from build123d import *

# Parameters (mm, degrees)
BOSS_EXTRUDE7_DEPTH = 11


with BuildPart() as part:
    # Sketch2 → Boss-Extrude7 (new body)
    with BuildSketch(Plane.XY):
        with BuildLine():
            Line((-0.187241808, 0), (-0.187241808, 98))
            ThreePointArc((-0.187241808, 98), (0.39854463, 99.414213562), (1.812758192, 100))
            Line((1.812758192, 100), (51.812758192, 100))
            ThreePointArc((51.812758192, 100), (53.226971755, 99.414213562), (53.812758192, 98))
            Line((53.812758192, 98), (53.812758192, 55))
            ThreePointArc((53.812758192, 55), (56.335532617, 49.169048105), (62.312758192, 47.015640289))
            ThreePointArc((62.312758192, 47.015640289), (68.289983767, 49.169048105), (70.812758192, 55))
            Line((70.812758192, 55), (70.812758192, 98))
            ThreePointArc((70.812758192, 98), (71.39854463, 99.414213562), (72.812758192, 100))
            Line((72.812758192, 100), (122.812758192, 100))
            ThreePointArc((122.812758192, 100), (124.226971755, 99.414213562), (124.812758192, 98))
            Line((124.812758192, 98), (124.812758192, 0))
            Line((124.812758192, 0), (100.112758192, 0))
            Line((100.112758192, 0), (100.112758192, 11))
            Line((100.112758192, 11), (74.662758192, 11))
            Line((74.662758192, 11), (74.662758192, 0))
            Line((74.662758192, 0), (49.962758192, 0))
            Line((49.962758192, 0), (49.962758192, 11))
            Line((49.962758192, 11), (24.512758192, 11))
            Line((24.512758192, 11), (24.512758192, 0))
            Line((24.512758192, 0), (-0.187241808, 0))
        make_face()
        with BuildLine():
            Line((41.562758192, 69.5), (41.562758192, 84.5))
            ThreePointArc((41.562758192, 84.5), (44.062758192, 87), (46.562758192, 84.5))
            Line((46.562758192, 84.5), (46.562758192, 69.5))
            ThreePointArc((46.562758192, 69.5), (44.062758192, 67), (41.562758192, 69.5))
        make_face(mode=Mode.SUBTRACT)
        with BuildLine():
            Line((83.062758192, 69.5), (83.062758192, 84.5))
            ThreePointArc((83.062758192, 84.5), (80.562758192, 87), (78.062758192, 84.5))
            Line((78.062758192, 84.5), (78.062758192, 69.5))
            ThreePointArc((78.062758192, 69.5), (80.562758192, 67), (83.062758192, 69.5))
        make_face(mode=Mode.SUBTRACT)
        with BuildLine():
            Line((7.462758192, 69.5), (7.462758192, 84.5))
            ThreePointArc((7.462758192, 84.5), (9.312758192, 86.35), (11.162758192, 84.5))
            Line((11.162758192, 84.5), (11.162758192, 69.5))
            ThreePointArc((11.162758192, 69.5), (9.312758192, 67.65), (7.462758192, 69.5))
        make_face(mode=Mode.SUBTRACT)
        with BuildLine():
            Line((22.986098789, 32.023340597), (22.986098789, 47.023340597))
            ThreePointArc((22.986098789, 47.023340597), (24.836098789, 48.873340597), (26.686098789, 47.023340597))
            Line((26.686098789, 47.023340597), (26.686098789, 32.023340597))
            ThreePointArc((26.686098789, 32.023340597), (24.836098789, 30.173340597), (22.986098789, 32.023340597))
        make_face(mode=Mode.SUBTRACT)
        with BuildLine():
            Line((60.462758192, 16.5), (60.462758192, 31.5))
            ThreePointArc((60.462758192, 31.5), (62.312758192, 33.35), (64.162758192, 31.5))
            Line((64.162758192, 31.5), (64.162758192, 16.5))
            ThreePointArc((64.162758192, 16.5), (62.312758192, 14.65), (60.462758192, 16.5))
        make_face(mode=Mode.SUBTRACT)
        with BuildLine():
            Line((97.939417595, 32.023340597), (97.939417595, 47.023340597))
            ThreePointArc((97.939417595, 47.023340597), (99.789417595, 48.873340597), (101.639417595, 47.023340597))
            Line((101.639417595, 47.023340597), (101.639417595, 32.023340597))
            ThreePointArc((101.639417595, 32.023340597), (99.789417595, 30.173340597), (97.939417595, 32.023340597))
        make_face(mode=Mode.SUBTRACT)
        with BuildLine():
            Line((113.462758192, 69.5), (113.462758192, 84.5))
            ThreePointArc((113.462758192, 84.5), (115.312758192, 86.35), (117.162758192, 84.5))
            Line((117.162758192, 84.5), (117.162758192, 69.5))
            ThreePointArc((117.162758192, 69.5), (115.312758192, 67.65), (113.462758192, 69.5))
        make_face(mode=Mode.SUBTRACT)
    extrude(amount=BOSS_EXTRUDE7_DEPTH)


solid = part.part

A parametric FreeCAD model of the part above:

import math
import FreeCAD as App
import Part
import Sketcher

V = App.Vector

doc = App.newDocument("Part")
params = doc.addObject("Spreadsheet::Sheet", "Params")
for row, (alias, value) in enumerate([
    ("sketch1_radius", "2 mm"),
    ("sketch1_radius2", "8 mm"),
    ("sketch1_radius3", "2.5 mm"),
    ("sketch1_width", "50 mm"),
    ("sketch1_height", "98 mm"),
    ("pad1_length", "11 mm"),
], start=1):
    params.set(f"A{row}", alias)
    params.set(f"B{row}", "=" + value)
    params.setAlias(f"B{row}", alias)

body = doc.addObject("PartDesign::Body", "Body")

# Sketch on XY plane
sketch1 = body.newObject("Sketcher::SketchObject", "Sketch")
sketch1.AttachmentSupport = (doc.getObject("XY_Plane"), [""])
sketch1.MapMode = "FlatFace"
sketch1.addGeometry(Part.LineSegment(V(-0.2, 98, 0), V(-0.2, 0, 0)), False)
sketch1.addGeometry(Part.LineSegment(V(-0.2, 0, 0), V(24.5, 0, 0)), False)
sketch1.addGeometry(Part.LineSegment(V(24.5, 0, 0), V(24.5, 11, 0)), False)
sketch1.addGeometry(Part.LineSegment(V(24.5, 11, 0), V(50, 11, 0)), False)
sketch1.addGeometry(Part.LineSegment(V(50, 11, 0), V(50, 0, 0)), False)
sketch1.addGeometry(Part.LineSegment(V(50, 0, 0), V(74.7, 0, 0)), False)
sketch1.addGeometry(Part.LineSegment(V(74.7, 0, 0), V(74.7, 11, 0)), False)
sketch1.addGeometry(Part.LineSegment(V(74.7, 11, 0), V(100.1, 11, 0)), False)
sketch1.addGeometry(Part.LineSegment(V(100.1, 11, 0), V(100.1, 0, 0)), False)
sketch1.addGeometry(Part.LineSegment(V(100.1, 0, 0), V(124.8, 0, 0)), False)
sketch1.addGeometry(Part.LineSegment(V(124.8, 0, 0), V(124.8, 98, 0)), False)
sketch1.addGeometry(Part.ArcOfCircle(Part.Circle(V(122.8, 98, 0), V(0, 0, 1), 2), math.radians(0), math.radians(90)), False)
sketch1.addGeometry(Part.LineSegment(V(122.8, 100, 0), V(72.8, 100, 0)), False)
sketch1.addGeometry(Part.ArcOfCircle(Part.Circle(V(72.8, 98, 0), V(0, 0, 1), 2), math.radians(90), math.radians(180)), False)
sketch1.addGeometry(Part.LineSegment(V(70.8, 98, 0), V(70.8, 55, 0)), False)
sketch1.addGeometry(Part.ArcOfCircle(Part.Circle(V(62.8, 55, 0), V(0, 0, 1), 8), math.radians(-94), math.radians(0)), False)
sketch1.addGeometry(Part.ArcOfCircle(Part.Circle(V(61.8, 55, 0), V(0, 0, 1), 8), math.radians(180), math.radians(274)), False)
sketch1.addGeometry(Part.LineSegment(V(53.8, 55, 0), V(53.8, 98, 0)), False)
sketch1.addGeometry(Part.ArcOfCircle(Part.Circle(V(51.8, 98, 0), V(0, 0, 1), 2), math.radians(0), math.radians(90)), False)
sketch1.addGeometry(Part.LineSegment(V(51.8, 100, 0), V(1.8, 100, 0)), False)
sketch1.addGeometry(Part.ArcOfCircle(Part.Circle(V(1.8, 98, 0), V(0, 0, 1), 2), math.radians(90), math.radians(180)), False)
sketch1.addGeometry(Part.LineSegment(V(97.9, 32, 0), V(97.9, 47, 0)), False)
sketch1.addGeometry(Part.ArcOfCircle(Part.Circle(V(99.8, 47, 0), V(0, 0, 1), 1.9), math.radians(0), math.radians(180)), False)
sketch1.addGeometry(Part.LineSegment(V(101.6, 47, 0), V(101.6, 32, 0)), False)
sketch1.addGeometry(Part.ArcOfCircle(Part.Circle(V(99.8, 32, 0), V(0, 0, 1), 1.9), math.radians(180), math.radians(360)), False)
sketch1.addGeometry(Part.LineSegment(V(60.5, 16.5, 0), V(60.5, 31.5, 0)), False)
sketch1.addGeometry(Part.ArcOfCircle(Part.Circle(V(62.3, 31.5, 0), V(0, 0, 1), 1.9), math.radians(0), math.radians(180)), False)
sketch1.addGeometry(Part.LineSegment(V(64.2, 31.5, 0), V(64.2, 16.5, 0)), False)
sketch1.addGeometry(Part.ArcOfCircle(Part.Circle(V(62.3, 16.5, 0), V(0, 0, 1), 1.9), math.radians(180), math.radians(360)), False)
sketch1.addGeometry(Part.LineSegment(V(23, 32, 0), V(23, 47, 0)), False)
sketch1.addGeometry(Part.ArcOfCircle(Part.Circle(V(24.8, 47, 0), V(0, 0, 1), 1.9), math.radians(0), math.radians(180)), False)
sketch1.addGeometry(Part.LineSegment(V(26.7, 47, 0), V(26.7, 32, 0)), False)
sketch1.addGeometry(Part.ArcOfCircle(Part.Circle(V(24.8, 32, 0), V(0, 0, 1), 1.9), math.radians(180), math.radians(360)), False)
sketch1.addGeometry(Part.LineSegment(V(113.5, 69.5, 0), V(113.5, 84.5, 0)), False)
sketch1.addGeometry(Part.ArcOfCircle(Part.Circle(V(115.3, 84.5, 0), V(0, 0, 1), 1.9), math.radians(0), math.radians(180)), False)
sketch1.addGeometry(Part.LineSegment(V(117.2, 84.5, 0), V(117.2, 69.5, 0)), False)
sketch1.addGeometry(Part.ArcOfCircle(Part.Circle(V(115.3, 69.5, 0), V(0, 0, 1), 1.9), math.radians(180), math.radians(360)), False)
sketch1.addGeometry(Part.ArcOfCircle(Part.Circle(V(80.6, 69.5, 0), V(0, 0, 1), 2.5), math.radians(180), math.radians(360)), False)
sketch1.addGeometry(Part.LineSegment(V(78.1, 69.5, 0), V(78.1, 84.5, 0)), False)
sketch1.addGeometry(Part.ArcOfCircle(Part.Circle(V(80.6, 84.5, 0), V(0, 0, 1), 2.5), math.radians(0), math.radians(180)), False)
sketch1.addGeometry(Part.LineSegment(V(83.1, 84.5, 0), V(83.1, 69.5, 0)), False)
sketch1.addGeometry(Part.LineSegment(V(41.6, 69.5, 0), V(41.6, 84.5, 0)), False)
sketch1.addGeometry(Part.ArcOfCircle(Part.Circle(V(44.1, 84.5, 0), V(0, 0, 1), 2.5), math.radians(0), math.radians(180)), False)
sketch1.addGeometry(Part.LineSegment(V(46.6, 84.5, 0), V(46.6, 69.5, 0)), False)
sketch1.addGeometry(Part.ArcOfCircle(Part.Circle(V(44.1, 69.5, 0), V(0, 0, 1), 2.5), math.radians(180), math.radians(360)), False)
sketch1.addGeometry(Part.LineSegment(V(7.5, 69.5, 0), V(7.5, 84.5, 0)), False)
sketch1.addGeometry(Part.ArcOfCircle(Part.Circle(V(9.3, 84.5, 0), V(0, 0, 1), 1.9), math.radians(0), math.radians(180)), False)
sketch1.addGeometry(Part.LineSegment(V(11.2, 84.5, 0), V(11.2, 69.5, 0)), False)
sketch1.addGeometry(Part.ArcOfCircle(Part.Circle(V(9.3, 69.5, 0), V(0, 0, 1), 1.9), math.radians(180), math.radians(360)), False)
sketch1.addConstraint(Sketcher.Constraint("Coincident", 0, 2, 1, 1))
sketch1.addConstraint(Sketcher.Constraint("Coincident", 1, 2, 2, 1))
sketch1.addConstraint(Sketcher.Constraint("Coincident", 2, 2, 3, 1))
sketch1.addConstraint(Sketcher.Constraint("Coincident", 3, 2, 4, 1))
sketch1.addConstraint(Sketcher.Constraint("Coincident", 4, 2, 5, 1))
sketch1.addConstraint(Sketcher.Constraint("Coincident", 5, 2, 6, 1))
sketch1.addConstraint(Sketcher.Constraint("Coincident", 6, 2, 7, 1))
sketch1.addConstraint(Sketcher.Constraint("Coincident", 7, 2, 8, 1))
sketch1.addConstraint(Sketcher.Constraint("Coincident", 8, 2, 9, 1))
sketch1.addConstraint(Sketcher.Constraint("Coincident", 9, 2, 10, 1))
sketch1.addConstraint(Sketcher.Constraint("Tangent", 10, 2, 11, 1))
sketch1.addConstraint(Sketcher.Constraint("Tangent", 11, 2, 12, 1))
sketch1.addConstraint(Sketcher.Constraint("Tangent", 12, 2, 13, 1))
sketch1.addConstraint(Sketcher.Constraint("Tangent", 13, 2, 14, 1))
sketch1.addConstraint(Sketcher.Constraint("Tangent", 14, 2, 15, 2))
sketch1.addConstraint(Sketcher.Constraint("Coincident", 15, 1, 16, 2))
sketch1.addConstraint(Sketcher.Constraint("Tangent", 16, 1, 17, 1))
sketch1.addConstraint(Sketcher.Constraint("Tangent", 17, 2, 18, 1))
sketch1.addConstraint(Sketcher.Constraint("Tangent", 18, 2, 19, 1))
sketch1.addConstraint(Sketcher.Constraint("Tangent", 19, 2, 20, 1))
sketch1.addConstraint(Sketcher.Constraint("Tangent", 20, 2, 0, 1))
sketch1.addConstraint(Sketcher.Constraint("Tangent", 21, 2, 22, 2))
sketch1.addConstraint(Sketcher.Constraint("Tangent", 22, 1, 23, 1))
sketch1.addConstraint(Sketcher.Constraint("Tangent", 23, 2, 24, 2))
sketch1.addConstraint(Sketcher.Constraint("Tangent", 24, 1, 21, 1))
sketch1.addConstraint(Sketcher.Constraint("Tangent", 25, 2, 26, 2))
sketch1.addConstraint(Sketcher.Constraint("Tangent", 26, 1, 27, 1))
sketch1.addConstraint(Sketcher.Constraint("Tangent", 27, 2, 28, 2))
sketch1.addConstraint(Sketcher.Constraint("Tangent", 28, 1, 25, 1))
sketch1.addConstraint(Sketcher.Constraint("Tangent", 29, 2, 30, 2))
sketch1.addConstraint(Sketcher.Constraint("Tangent", 30, 1, 31, 1))
sketch1.addConstraint(Sketcher.Constraint("Tangent", 31, 2, 32, 2))
sketch1.addConstraint(Sketcher.Constraint("Tangent", 32, 1, 29, 1))
sketch1.addConstraint(Sketcher.Constraint("Tangent", 33, 2, 34, 2))
sketch1.addConstraint(Sketcher.Constraint("Tangent", 34, 1, 35, 1))
sketch1.addConstraint(Sketcher.Constraint("Tangent", 35, 2, 36, 2))
sketch1.addConstraint(Sketcher.Constraint("Tangent", 36, 1, 33, 1))
sketch1.addConstraint(Sketcher.Constraint("Tangent", 37, 1, 38, 1))
sketch1.addConstraint(Sketcher.Constraint("Tangent", 38, 2, 39, 2))
sketch1.addConstraint(Sketcher.Constraint("Tangent", 39, 1, 40, 1))
sketch1.addConstraint(Sketcher.Constraint("Tangent", 40, 2, 37, 2))
sketch1.addConstraint(Sketcher.Constraint("Tangent", 41, 2, 42, 2))
sketch1.addConstraint(Sketcher.Constraint("Tangent", 42, 1, 43, 1))
sketch1.addConstraint(Sketcher.Constraint("Tangent", 43, 2, 44, 2))
sketch1.addConstraint(Sketcher.Constraint("Tangent", 44, 1, 41, 1))
sketch1.addConstraint(Sketcher.Constraint("Tangent", 45, 2, 46, 2))
sketch1.addConstraint(Sketcher.Constraint("Tangent", 46, 1, 47, 1))
sketch1.addConstraint(Sketcher.Constraint("Tangent", 47, 2, 48, 2))
sketch1.addConstraint(Sketcher.Constraint("Tangent", 48, 1, 45, 1))
sketch1.addConstraint(Sketcher.Constraint("Vertical", 0))
sketch1.addConstraint(Sketcher.Constraint("Horizontal", 1))
sketch1.addConstraint(Sketcher.Constraint("Vertical", 2))
sketch1.addConstraint(Sketcher.Constraint("Horizontal", 3))
sketch1.addConstraint(Sketcher.Constraint("Vertical", 4))
sketch1.addConstraint(Sketcher.Constraint("Horizontal", 5))
sketch1.addConstraint(Sketcher.Constraint("Vertical", 6))
sketch1.addConstraint(Sketcher.Constraint("Horizontal", 7))
sketch1.addConstraint(Sketcher.Constraint("Vertical", 8))
sketch1.addConstraint(Sketcher.Constraint("Horizontal", 9))
sketch1.addConstraint(Sketcher.Constraint("Vertical", 10))
sketch1.addConstraint(Sketcher.Constraint("Horizontal", 12))
sketch1.addConstraint(Sketcher.Constraint("Vertical", 14))
sketch1.addConstraint(Sketcher.Constraint("Vertical", 17))
sketch1.addConstraint(Sketcher.Constraint("Horizontal", 19))
sketch1.addConstraint(Sketcher.Constraint("Vertical", 21))
sketch1.addConstraint(Sketcher.Constraint("Vertical", 23))
sketch1.addConstraint(Sketcher.Constraint("Vertical", 25))
sketch1.addConstraint(Sketcher.Constraint("Vertical", 27))
sketch1.addConstraint(Sketcher.Constraint("Vertical", 29))
sketch1.addConstraint(Sketcher.Constraint("Vertical", 31))
sketch1.addConstraint(Sketcher.Constraint("Vertical", 33))
sketch1.addConstraint(Sketcher.Constraint("Vertical", 35))
sketch1.addConstraint(Sketcher.Constraint("Vertical", 38))
sketch1.addConstraint(Sketcher.Constraint("Vertical", 40))
sketch1.addConstraint(Sketcher.Constraint("Vertical", 41))
sketch1.addConstraint(Sketcher.Constraint("Vertical", 43))
sketch1.addConstraint(Sketcher.Constraint("Vertical", 45))
sketch1.addConstraint(Sketcher.Constraint("Vertical", 47))
sketch1.addConstraint(Sketcher.Constraint("Equal", 11, 13))
sketch1.addConstraint(Sketcher.Constraint("Equal", 15, 16))
sketch1.addConstraint(Sketcher.Constraint("Equal", 13, 18))
sketch1.addConstraint(Sketcher.Constraint("Equal", 18, 20))
sketch1.addConstraint(Sketcher.Constraint("Equal", 24, 26))
sketch1.addConstraint(Sketcher.Constraint("Equal", 28, 30))
sketch1.addConstraint(Sketcher.Constraint("Equal", 32, 34))
sketch1.addConstraint(Sketcher.Constraint("Equal", 39, 42))
sketch1.addConstraint(Sketcher.Constraint("Equal", 36, 46))
sketch1.addConstraint(Sketcher.Constraint("PointOnObject", 0, 2, -1))
sketch1.addConstraint(Sketcher.Constraint("PointOnObject", 4, 2, -1))
sketch1.addConstraint(Sketcher.Constraint("PointOnObject", 8, 2, -1))
sketch1.addConstraint(Sketcher.Constraint("Horizontal", 15, 3, 16, 3))
sketch1.addConstraint(Sketcher.Constraint("Horizontal", 13, 3, 18, 3))
sketch1.addConstraint(Sketcher.Constraint("Horizontal", 22, 3, 30, 3))
sketch1.addConstraint(Sketcher.Constraint("Horizontal", 24, 3, 32, 3))
sketch1.addConstraint(Sketcher.Constraint("Horizontal", 36, 3, 37, 3))
sketch1.addConstraint(Sketcher.Constraint("Horizontal", 34, 3, 39, 3))
sketch1.addConstraint(Sketcher.Constraint("Horizontal", 39, 3, 42, 3))
sketch1.addConstraint(Sketcher.Constraint("Horizontal", 37, 3, 44, 3))
sketch1.addConstraint(Sketcher.Constraint("Horizontal", 42, 3, 46, 3))
sketch1.addConstraint(Sketcher.Constraint("Horizontal", 44, 3, 48, 3))
sketch1.addConstraint(Sketcher.Constraint("Horizontal", 3, 2, 6, 2))
sketch1.addConstraint(Sketcher.Constraint("Vertical", 28, 3, 15, 1))
sketch1.addConstraint(Sketcher.Constraint("Equal", 1, 5))
sketch1.addConstraint(Sketcher.Constraint("Equal", 3, 7))
sketch1.addConstraint(Sketcher.Constraint("Equal", 5, 9))
sketch1.addConstraint(Sketcher.Constraint("Equal", 12, 19))
sketch1.addConstraint(Sketcher.Constraint("Equal", 23, 25))
sketch1.addConstraint(Sketcher.Constraint("Equal", 31, 33))
sketch1.addConstraint(Sketcher.Constraint("Radius", 11, 2.0))
sketch1.addConstraint(Sketcher.Constraint("Radius", 15, 8.0))
sketch1.addConstraint(Sketcher.Constraint("Radius", 37, 2.5))
sketch1.addConstraint(Sketcher.Constraint("DistanceX", 12, 2, 12, 1, 50.0))
sketch1.addConstraint(Sketcher.Constraint("DistanceY", 0, 2, 0, 1, 98.0))
sketch1.addConstraint(Sketcher.Constraint("DistanceY", 2, 1, 2, 2, 11.0))
sketch1.addConstraint(Sketcher.Constraint("DistanceY", 14, 2, 14, 1, 43.0))
sketch1.addConstraint(Sketcher.Constraint("DistanceY", 21, 1, 21, 2, 15.0))
sketch1.addConstraint(Sketcher.Constraint("Radius", 22, 1.85))
sketch1.addConstraint(Sketcher.Constraint("DistanceX", 1, 1, 1, 2, 24.7))
sketch1.addConstraint(Sketcher.Constraint("DistanceX", 3, 1, 3, 2, 25.45))
sketch1.addConstraint(Sketcher.Constraint("DistanceY", -1, 1, 26, 3, 31.5))
sketch1.addConstraint(Sketcher.Constraint("DistanceY", -1, 1, 34, 3, 84.5))
sketch1.addConstraint(Sketcher.Constraint("DistanceX", -1, 1, 30, 3, 24.836099))
sketch1.addConstraint(Sketcher.Constraint("DistanceX", -1, 1, 11, 3, 122.812758))
sketch1.addConstraint(Sketcher.Constraint("DistanceY", -1, 1, 22, 3, 47.023341))
sketch1.addConstraint(Sketcher.Constraint("DistanceX", -1, 1, 34, 3, 115.312758))
sketch1.addConstraint(Sketcher.Constraint("DistanceX", -1, 1, 37, 3, 80.562758))
sketch1.addConstraint(Sketcher.Constraint("DistanceX", -1, 1, 42, 3, 44.062758))
sketch1.addConstraint(Sketcher.Constraint("DistanceX", -1, 1, 46, 3, 9.312758))
sketch1.addConstraint(Sketcher.Constraint("DistanceX", -1, 1, 22, 3, 99.789418))
sketch1.setExpression("Constraints[108]", "Params.sketch1_radius")
sketch1.setExpression("Constraints[109]", "Params.sketch1_radius2")
sketch1.setExpression("Constraints[110]", "Params.sketch1_radius3")
sketch1.setExpression("Constraints[111]", "Params.sketch1_width")
sketch1.setExpression("Constraints[112]", "Params.sketch1_height")
pad1 = body.newObject("PartDesign::Pad", "Pad")
pad1.Profile = sketch1
pad1.setExpression("Length", "Params.pad1_length")

doc.recompute()
